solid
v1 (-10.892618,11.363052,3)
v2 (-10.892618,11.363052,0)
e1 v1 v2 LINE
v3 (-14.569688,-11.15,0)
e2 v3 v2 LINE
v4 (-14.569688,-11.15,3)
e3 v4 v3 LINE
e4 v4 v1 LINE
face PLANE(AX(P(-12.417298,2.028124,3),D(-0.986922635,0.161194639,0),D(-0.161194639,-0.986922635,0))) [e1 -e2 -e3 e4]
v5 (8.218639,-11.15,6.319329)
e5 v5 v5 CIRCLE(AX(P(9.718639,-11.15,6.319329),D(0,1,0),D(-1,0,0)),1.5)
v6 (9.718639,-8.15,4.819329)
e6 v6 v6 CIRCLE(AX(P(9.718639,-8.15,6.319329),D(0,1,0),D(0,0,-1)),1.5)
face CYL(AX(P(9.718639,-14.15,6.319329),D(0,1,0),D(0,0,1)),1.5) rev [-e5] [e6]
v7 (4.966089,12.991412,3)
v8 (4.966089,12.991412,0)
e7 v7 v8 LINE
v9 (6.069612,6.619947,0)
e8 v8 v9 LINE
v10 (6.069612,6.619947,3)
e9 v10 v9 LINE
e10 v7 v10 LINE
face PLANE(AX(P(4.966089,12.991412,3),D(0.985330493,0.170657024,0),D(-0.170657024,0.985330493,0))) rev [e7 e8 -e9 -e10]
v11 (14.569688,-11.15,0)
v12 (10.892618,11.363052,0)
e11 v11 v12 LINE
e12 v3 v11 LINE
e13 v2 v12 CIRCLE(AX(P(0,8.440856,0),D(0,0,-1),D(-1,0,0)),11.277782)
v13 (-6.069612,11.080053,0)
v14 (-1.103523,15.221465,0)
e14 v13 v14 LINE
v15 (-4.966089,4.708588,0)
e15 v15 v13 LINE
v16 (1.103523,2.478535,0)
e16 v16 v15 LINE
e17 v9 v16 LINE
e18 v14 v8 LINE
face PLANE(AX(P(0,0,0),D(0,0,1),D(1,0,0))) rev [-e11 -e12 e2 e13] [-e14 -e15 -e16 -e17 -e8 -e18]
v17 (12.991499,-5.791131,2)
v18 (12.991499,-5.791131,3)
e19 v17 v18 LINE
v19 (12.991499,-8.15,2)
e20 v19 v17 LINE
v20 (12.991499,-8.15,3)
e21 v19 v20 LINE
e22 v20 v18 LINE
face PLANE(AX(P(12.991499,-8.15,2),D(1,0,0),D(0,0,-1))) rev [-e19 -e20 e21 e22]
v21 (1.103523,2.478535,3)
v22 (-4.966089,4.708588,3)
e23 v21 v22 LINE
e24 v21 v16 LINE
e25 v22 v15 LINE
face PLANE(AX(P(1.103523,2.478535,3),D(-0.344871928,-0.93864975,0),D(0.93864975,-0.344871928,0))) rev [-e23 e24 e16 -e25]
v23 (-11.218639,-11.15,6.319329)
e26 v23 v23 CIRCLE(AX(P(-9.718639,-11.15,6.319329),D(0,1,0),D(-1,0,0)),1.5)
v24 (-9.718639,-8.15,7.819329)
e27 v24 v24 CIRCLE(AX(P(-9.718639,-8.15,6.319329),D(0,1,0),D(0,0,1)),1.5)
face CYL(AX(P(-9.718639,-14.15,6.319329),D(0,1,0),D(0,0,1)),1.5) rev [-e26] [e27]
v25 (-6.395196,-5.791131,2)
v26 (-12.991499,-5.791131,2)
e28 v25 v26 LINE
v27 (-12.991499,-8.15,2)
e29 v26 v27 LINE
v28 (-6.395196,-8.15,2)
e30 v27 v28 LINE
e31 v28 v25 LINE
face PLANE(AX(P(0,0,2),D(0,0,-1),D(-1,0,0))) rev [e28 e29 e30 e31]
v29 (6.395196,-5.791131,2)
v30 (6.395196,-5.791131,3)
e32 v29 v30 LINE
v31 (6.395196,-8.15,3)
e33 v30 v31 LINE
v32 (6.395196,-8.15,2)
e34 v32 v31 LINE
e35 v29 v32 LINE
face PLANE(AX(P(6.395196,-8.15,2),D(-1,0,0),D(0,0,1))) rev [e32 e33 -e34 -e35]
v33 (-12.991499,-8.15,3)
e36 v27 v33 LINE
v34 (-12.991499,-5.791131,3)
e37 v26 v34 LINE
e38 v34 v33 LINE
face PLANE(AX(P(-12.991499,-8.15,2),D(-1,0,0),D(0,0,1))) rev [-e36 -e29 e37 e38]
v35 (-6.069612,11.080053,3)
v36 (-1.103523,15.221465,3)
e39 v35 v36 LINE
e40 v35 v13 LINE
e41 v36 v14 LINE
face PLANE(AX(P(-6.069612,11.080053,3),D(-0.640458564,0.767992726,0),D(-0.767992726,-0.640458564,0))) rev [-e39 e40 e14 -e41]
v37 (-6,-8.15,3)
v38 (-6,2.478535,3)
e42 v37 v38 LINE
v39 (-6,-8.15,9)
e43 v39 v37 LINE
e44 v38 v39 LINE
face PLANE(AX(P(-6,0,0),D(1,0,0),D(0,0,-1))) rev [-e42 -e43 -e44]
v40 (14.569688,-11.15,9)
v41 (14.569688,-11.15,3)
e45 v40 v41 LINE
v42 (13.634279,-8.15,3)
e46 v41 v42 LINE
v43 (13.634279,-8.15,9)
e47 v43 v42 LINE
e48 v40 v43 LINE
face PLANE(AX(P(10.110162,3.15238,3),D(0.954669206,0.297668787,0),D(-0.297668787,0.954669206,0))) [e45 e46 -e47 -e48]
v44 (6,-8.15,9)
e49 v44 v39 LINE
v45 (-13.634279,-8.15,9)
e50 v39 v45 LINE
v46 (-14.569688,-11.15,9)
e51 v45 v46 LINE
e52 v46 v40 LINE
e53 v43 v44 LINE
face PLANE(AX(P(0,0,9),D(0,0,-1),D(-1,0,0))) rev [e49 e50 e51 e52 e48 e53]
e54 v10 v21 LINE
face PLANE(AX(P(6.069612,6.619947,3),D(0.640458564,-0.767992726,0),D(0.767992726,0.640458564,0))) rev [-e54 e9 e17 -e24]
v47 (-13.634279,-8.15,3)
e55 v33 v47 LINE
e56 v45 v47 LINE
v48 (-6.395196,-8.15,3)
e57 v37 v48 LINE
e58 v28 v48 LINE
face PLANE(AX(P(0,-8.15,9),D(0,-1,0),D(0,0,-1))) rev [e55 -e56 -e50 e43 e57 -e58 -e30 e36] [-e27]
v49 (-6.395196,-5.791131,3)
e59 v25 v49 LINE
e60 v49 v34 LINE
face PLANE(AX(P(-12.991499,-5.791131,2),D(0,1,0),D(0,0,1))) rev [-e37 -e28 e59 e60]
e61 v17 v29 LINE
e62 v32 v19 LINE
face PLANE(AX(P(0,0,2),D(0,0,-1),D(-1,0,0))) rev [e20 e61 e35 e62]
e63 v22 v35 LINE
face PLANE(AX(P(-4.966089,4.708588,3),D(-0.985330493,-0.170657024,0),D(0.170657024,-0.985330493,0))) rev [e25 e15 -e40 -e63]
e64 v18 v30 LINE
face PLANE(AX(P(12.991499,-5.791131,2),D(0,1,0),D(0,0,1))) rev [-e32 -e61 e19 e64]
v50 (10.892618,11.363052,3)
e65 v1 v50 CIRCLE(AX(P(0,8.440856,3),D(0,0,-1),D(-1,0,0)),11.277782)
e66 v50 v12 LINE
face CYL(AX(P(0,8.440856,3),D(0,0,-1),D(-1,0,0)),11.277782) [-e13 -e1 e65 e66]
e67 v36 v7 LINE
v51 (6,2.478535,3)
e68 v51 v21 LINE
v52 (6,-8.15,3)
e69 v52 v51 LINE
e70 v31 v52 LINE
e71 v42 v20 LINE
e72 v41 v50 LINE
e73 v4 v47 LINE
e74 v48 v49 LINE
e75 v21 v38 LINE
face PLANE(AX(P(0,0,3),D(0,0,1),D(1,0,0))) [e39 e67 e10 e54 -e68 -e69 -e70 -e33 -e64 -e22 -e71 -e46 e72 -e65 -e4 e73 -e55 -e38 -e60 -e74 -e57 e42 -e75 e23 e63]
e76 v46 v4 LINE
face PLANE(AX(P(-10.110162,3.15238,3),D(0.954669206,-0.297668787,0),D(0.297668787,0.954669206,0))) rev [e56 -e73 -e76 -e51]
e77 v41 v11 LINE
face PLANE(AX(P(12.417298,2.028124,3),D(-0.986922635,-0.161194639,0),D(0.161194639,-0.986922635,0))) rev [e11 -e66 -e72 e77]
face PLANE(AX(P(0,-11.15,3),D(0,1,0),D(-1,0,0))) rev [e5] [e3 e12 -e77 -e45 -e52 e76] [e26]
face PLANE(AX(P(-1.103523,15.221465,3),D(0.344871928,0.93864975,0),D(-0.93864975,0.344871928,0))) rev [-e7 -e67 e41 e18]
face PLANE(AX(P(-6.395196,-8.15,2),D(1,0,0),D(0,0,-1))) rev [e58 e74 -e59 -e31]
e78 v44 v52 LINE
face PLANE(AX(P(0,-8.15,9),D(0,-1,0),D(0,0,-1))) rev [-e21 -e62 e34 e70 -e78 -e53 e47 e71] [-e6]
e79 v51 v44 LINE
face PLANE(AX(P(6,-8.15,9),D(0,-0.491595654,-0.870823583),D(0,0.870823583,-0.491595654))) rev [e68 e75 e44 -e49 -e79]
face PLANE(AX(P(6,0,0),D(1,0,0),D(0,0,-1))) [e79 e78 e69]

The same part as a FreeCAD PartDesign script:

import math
import FreeCAD as App
import Part
import Sketcher


def add_polygon(sketch, points):
    """Adds a closed chain of lines whose ends are joined by coincident constraints."""
    first, n = sketch.GeometryCount, len(points)
    for a, b in zip(points, points[1:] + points[:1]):
        sketch.addGeometry(Part.LineSegment(App.Vector(*a, 0), App.Vector(*b, 0)), False)
    for i in range(n):
        sketch.addConstraint(Sketcher.Constraint("Coincident", first + i, 2, first + (i + 1) % n, 1))

doc = App.newDocument("Part")
params = doc.addObject("Spreadsheet::Sheet", "Params")
for row, (alias, value) in enumerate([
    ("sketch1_diameter", "13 mm"),
    ("pad1_length", "3 mm"),
    ("pad2_length", "6 mm"),
    ("sketch3_diameter", "3 mm"),
    ("pocket1_length", "6 mm"),
    ("pad3_length", "3 mm"),
    ("pad4_length", "3 mm"),
    ("pocket2_length", "3 mm"),
    ("sketch7_height", "6 mm"),
    ("pad5_length", "12 mm"),
    ("pocket3_length", "1 mm"),
], start=1):
    params.set(f"A{row}", alias)
    params.set(f"B{row}", "=" + value)
    params.setAlias(f"B{row}", alias)

body = doc.addObject("PartDesign::Body", "Body")

# Sketch on XY plane
sketch1 = doc.addObject("Sketcher::SketchObject", "Sketch")
body.addObject(sketch1)
sketch1.AttachmentSupport = (doc.XY_Plane, [""])
sketch1.MapMode = "FlatFace"
sketch1.addGeometry([
    Part.LineSegment(App.Vector(-10.110162, 3.15238, 0), App.Vector(-14.569688, -11.15, 0)),  # 0
    Part.LineSegment(App.Vector(-14.569688, -11.15, 0), App.Vector(14.569688, -11.15, 0)),  # 1
    Part.LineSegment(App.Vector(14.569688, -11.15, 0), App.Vector(10.110162, 3.15238, 0)),  # 2
    Part.ArcOfCircle(Part.Circle(App.Vector(0, 0, 0), App.Vector(0, 0, 1), 10.590226), math.radians(17.317639), math.radians(162.682361)),  # 3
    Part.Circle(App.Vector(0, 0, 0), App.Vector(0, 0, 1), 6.5),  # 4
], False)
sketch1.addConstraint([
    Sketcher.Constraint("Coincident", 0, 2, 1, 1),
    Sketcher.Constraint("Coincident", 1, 2, 2, 1),
    Sketcher.Constraint("Tangent", 2, 2, 3, 1),
    Sketcher.Constraint("Tangent", 3, 2, 0, 1),
    Sketcher.Constraint("Horizontal", 1),
    Sketcher.Constraint("Coincident", 3, 3, -1, 1),
    Sketcher.Constraint("Coincident", 4, 3, -1, 1),
    Sketcher.Constraint("Horizontal", 2, 2, 3, 2),
    Sketcher.Constraint("Diameter", 4, 13.0),
    Sketcher.Constraint("DistanceY", 0, 2, -1, 1, 11.15),
    Sketcher.Constraint("Radius", 3, 10.590226),
    Sketcher.Constraint("DistanceX", 1, 1, 1, 2, 29.139376),
])
sketch1.setExpression("Constraints[8]", "Params.sketch1_diameter")
pad1 = doc.addObject("PartDesign::Pad", "Pad")
body.addObject(pad1)
pad1.Profile = sketch1
pad1.setExpression("Length", "Params.pad1_length")

# Sketch on XY plane
sketch2 = doc.addObject("Sketcher::SketchObject", "Sketch001")
body.addObject(sketch2)
sketch2.AttachmentSupport = (doc.XY_Plane, [""])
sketch2.MapMode = "FlatFace"
sketch2.AttachmentOffset = App.Placement(App.Vector(0, 0, 3), App.Rotation())
add_polygon(sketch2, [(13.634279, -8.15), (-13.634279, -8.15), (-14.569688, -11.15), (14.569688, -11.15)])  # lines 0-3
sketch2.addConstraint([
    Sketcher.Constraint("Horizontal", 0),
    Sketcher.Constraint("Horizontal", 2),
    Sketcher.Constraint("Equal", 1, 3),
    Sketcher.Constraint("DistanceY", 1, 2, 0, 2, 3.0),
    Sketcher.Constraint("DistanceY", 0, 2, -1, 1, 8.15),
    Sketcher.Constraint("Distance", 1, 3.14245),
    Sketcher.Constraint("DistanceX", 0, 2, 0, 1, 27.268558),
    Sketcher.Constraint("DistanceX", 0, 2, -1, 1, 13.634279),
])
pad2 = doc.addObject("PartDesign::Pad", "Pad001")
body.addObject(pad2)
pad2.Profile = sketch2
pad2.setExpression("Length", "Params.pad2_length")

# Sketch on XZ plane
sketch3 = doc.addObject("Sketcher::SketchObject", "Sketch002")
body.addObject(sketch3)
sketch3.AttachmentSupport = (doc.XZ_Plane, [""])
sketch3.MapMode = "FlatFace"
sketch3.AttachmentOffset = App.Placement(App.Vector(0, 0, 8.15), App.Rotation())
sketch3.addGeometry([
    Part.Circle(App.Vector(-9.718639, 6.319329, 0), App.Vector(0, 0, 1), 1.5),
    Part.Circle(App.Vector(9.718639, 6.319329, 0), App.Vector(0, 0, 1), 1.5),
], False)
sketch3.addConstraint([
    Sketcher.Constraint("Equal", 0, 1),
    Sketcher.Constraint("Symmetric", 0, 3, 1, 3, -2),
    Sketcher.Constraint("Diameter", 0, 3.0),
    Sketcher.Constraint("DistanceX", 0, 3, -1, 1, 9.718639),
    Sketcher.Constraint("DistanceY", -1, 1, 0, 3, 6.319329),
])
sketch3.setExpression("Constraints[2]", "Params.sketch3_diameter")
pocket1 = doc.addObject("PartDesign::Pocket", "Pocket")
body.addObject(pocket1)
pocket1.Profile = sketch3
pocket1.setExpression("Length", "Params.pocket1_length")
pocket1.Reversed = True

# Sketch on XY plane
sketch4 = doc.addObject("Sketcher::SketchObject", "Sketch003")
body.addObject(sketch4)
sketch4.AttachmentSupport = (doc.XY_Plane, [""])
sketch4.MapMode = "FlatFace"
sketch4.addGeometry([
    Part.LineSegment(App.Vector(-10.110162, 3.15238, 0), App.Vector(-14.569688, -11.15, 0)),  # 0
    Part.LineSegment(App.Vector(-14.569688, -11.15, 0), App.Vector(-11.256322, 9.13626, 0)),  # 1
    Part.LineSegment(App.Vector(-11.256322, 9.13626, 0), App.Vector(-10.892618, 11.363052, 0)),  # 2
    Part.ArcOfCircle(Part.Circle(App.Vector(0, 8.440856, 0), App.Vector(0, 0, 1), 11.277782), math.radians(15.01731), math.radians(164.98269)),  # 3
    Part.LineSegment(App.Vector(10.892618, 11.363052, 0), App.Vector(11.256322, 9.13626, 0)),  # 4
    Part.LineSegment(App.Vector(11.256322, 9.13626, 0), App.Vector(14.569688, -11.15, 0)),  # 5
    Part.LineSegment(App.Vector(14.569688, -11.15, 0), App.Vector(10.110162, 3.15238, 0)),  # 6
    Part.ArcOfCircle(Part.Circle(App.Vector(0, 0, 0), App.Vector(0, 0, 1), 10.590226), math.radians(17.317639), math.radians(162.682361)),  # 7
], False)
sketch4.addConstraint([
    Sketcher.Constraint("Coincident", 0, 2, 1, 1),
    Sketcher.Constraint("Coincident", 1, 2, 2, 1),
    Sketcher.Constraint("Coincident", 2, 2, 3, 2),
    Sketcher.Constraint("Coincident", 3, 1, 4, 1),
    Sketcher.Constraint("Coincident", 4, 2, 5, 1),
    Sketcher.Constraint("Coincident", 5, 2, 6, 1),
    Sketcher.Constraint("Tangent", 6, 2, 7, 1),
    Sketcher.Constraint("Tangent", 7, 2, 0, 1),
    Sketcher.Constraint("Coincident", 7, 3, -1, 1),
    Sketcher.Constraint("Symmetric", 2, 2, 3, 1, -2),
    Sketcher.Constraint("Symmetric", 1, 2, 4, 2, -2),
    Sketcher.Constraint("Symmetric", 0, 2, 5, 2, -2),
    Sketcher.Constraint("Parallel", 1, 2),
    Sketcher.Constraint("DistanceY", 0, 2, -1, 1, 11.15),
    Sketcher.Constraint("Radius", 3, 11.277782),
    Sketcher.Constraint("Radius", 7, 10.590226),
    Sketcher.Constraint("Distance", 2, 2.256299),
    Sketcher.Constraint("DistanceX", 0, 2, -1, 1, 14.569688),
    Sketcher.Constraint("DistanceX", 1, 2, -1, 1, 11.256322),
    Sketcher.Constraint("DistanceY", -1, 1, 1, 2, 9.13626),
])
pad3 = doc.addObject("PartDesign::Pad", "Pad002")
body.addObject(pad3)
pad3.Profile = sketch4
pad3.setExpression("Length", "Params.pad3_length")

# Sketch on XY plane
sketch5 = doc.addObject("Sketcher::SketchObject", "Sketch004")
body.addObject(sketch5)
sketch5.AttachmentSupport = (doc.XY_Plane, [""])
sketch5.MapMode = "FlatFace"
sketch5.addGeometry(Part.Circle(App.Vector(0, 0, 0), App.Vector(0, 0, 1), 7.581976), False)
sketch5.addConstraint([
    Sketcher.Constraint("Coincident", 0, 3, -1, 1),
    Sketcher.Constraint("Diameter", 0, 15.163951),
])
pad4 = doc.addObject("PartDesign::Pad", "Pad003")
body.addObject(pad4)
pad4.Profile = sketch5
pad4.setExpression("Length", "Params.pad4_length")

# Sketch on XY plane
sketch6 = doc.addObject("Sketcher::SketchObject", "Sketch005")
body.addObject(sketch6)
sketch6.AttachmentSupport = (doc.XY_Plane, [""])
sketch6.MapMode = "FlatFace"
add_polygon(sketch6, [(-1.103523, 15.221465), (4.966089, 12.991412), (6.069612, 6.619947), (1.103523, 2.478535), (-4.966089, 4.708588), (-6.069612, 11.080053)])  # lines 0-5
sketch6.addConstraint([
    Sketcher.Constraint("Parallel", 0, 3),
    Sketcher.Constraint("Parallel", 1, 4),
    Sketcher.Constraint("Parallel", 2, 5),
    Sketcher.Constraint("Equal", 0, 1),
    Sketcher.Constraint("Equal", 1, 2),
    Sketcher.Constraint("Equal", 2, 3),
    Sketcher.Constraint("DistanceX", 3, 2, 1, 2, 11.035702),
    Sketcher.Constraint("DistanceX", -1, 1, 0, 2, 4.966089),
    Sketcher.Constraint("DistanceY", -1, 1, 0, 2, 12.991412),
    Sketcher.Constraint("DistanceX", 3, 2, -1, 1, 4.966089),
    Sketcher.Constraint("DistanceY", -1, 1, 3, 2, 4.708588),
    Sketcher.Constraint("DistanceX", 2, 2, 1, 2, 4.966089),
])
pocket2 = doc.addObject("PartDesign::Pocket", "Pocket001")
body.addObject(pocket2)
pocket2.Profile = sketch6
pocket2.setExpression("Length", "Params.pocket2_length")
pocket2.Reversed = True

# Sketch on YZ plane
sketch7 = doc.addObject("Sketcher::SketchObject", "Sketch006")
body.addObject(sketch7)
sketch7.AttachmentSupport = (doc.YZ_Plane, [""])
sketch7.MapMode = "FlatFace"
add_polygon(sketch7, [(2.478535, 3), (-8.15, 9), (-8.15, 3)])  # lines 0-2
sketch7.addConstraint([
    Sketcher.Constraint("Vertical", 1),
    Sketcher.Constraint("Horizontal", 2),
    Sketcher.Constraint("DistanceY", 1, 2, 1, 1, 6.0),
    Sketcher.Constraint("DistanceY", -1, 1, 0, 2, 9.0),
    Sketcher.Constraint("DistanceX", 0, 2, -1, 1, 8.15),
    Sketcher.Constraint("DistanceX", 2, 1, 2, 2, 10.628535),
])
sketch7.setExpression("Constraints[5]", "Params.sketch7_height")
pad5 = doc.addObject("PartDesign::Pad", "Pad004")
body.addObject(pad5)
pad5.Profile = sketch7
pad5.setExpression("Length", "Params.pad5_length")
pad5.Midplane = True

# Sketch on XY plane
sketch8 = doc.addObject("Sketcher::SketchObject", "Sketch007")
body.addObject(sketch8)
sketch8.AttachmentSupport = (doc.XY_Plane, [""])
sketch8.MapMode = "FlatFace"
sketch8.AttachmentOffset = App.Placement(App.Vector(0, 0, 3), App.Rotation())
add_polygon(sketch8, [(-12.991499, -5.791131), (-12.991499, -8.15), (-6.395196, -8.15), (-6.395196, -5.791131)])  # lines 0-3
add_polygon(sketch8, [(6.395196, -5.791131), (6.395196, -8.15), (12.991499, -8.15), (12.991499, -5.791131)])  # lines 4-7
sketch8.addConstraint([
    Sketcher.Constraint("Vertical", 0),
    Sketcher.Constraint("Horizontal", 1),
    Sketcher.Constraint("Vertical", 2),
    Sketcher.Constraint("Horizontal", 3),
    Sketcher.Constraint("Vertical", 4),
    Sketcher.Constraint("Horizontal", 5),
    Sketcher.Constraint("Vertical", 6),
    Sketcher.Constraint("Horizontal", 7),
    Sketcher.Constraint("Symmetric", 1, 2, 4, 2, -2),
    Sketcher.Constraint("Symmetric", 3, 2, 6, 2, -2),
    Sketcher.Constraint("DistanceY", 0, 2, -1, 1, 8.15),
    Sketcher.Constraint("DistanceY", 0, 2, 0, 1, 2.358869),
    Sketcher.Constraint("DistanceX", 0, 2, -1, 1, 12.991499),
    Sketcher.Constraint("DistanceX", 1, 1, 1, 2, 6.596303),
])
pocket3 = doc.addObject("PartDesign::Pocket", "Pocket002")
body.addObject(pocket3)
pocket3.Profile = sketch8
pocket3.setExpression("Length", "Params.pocket3_length")

doc.recompute()
